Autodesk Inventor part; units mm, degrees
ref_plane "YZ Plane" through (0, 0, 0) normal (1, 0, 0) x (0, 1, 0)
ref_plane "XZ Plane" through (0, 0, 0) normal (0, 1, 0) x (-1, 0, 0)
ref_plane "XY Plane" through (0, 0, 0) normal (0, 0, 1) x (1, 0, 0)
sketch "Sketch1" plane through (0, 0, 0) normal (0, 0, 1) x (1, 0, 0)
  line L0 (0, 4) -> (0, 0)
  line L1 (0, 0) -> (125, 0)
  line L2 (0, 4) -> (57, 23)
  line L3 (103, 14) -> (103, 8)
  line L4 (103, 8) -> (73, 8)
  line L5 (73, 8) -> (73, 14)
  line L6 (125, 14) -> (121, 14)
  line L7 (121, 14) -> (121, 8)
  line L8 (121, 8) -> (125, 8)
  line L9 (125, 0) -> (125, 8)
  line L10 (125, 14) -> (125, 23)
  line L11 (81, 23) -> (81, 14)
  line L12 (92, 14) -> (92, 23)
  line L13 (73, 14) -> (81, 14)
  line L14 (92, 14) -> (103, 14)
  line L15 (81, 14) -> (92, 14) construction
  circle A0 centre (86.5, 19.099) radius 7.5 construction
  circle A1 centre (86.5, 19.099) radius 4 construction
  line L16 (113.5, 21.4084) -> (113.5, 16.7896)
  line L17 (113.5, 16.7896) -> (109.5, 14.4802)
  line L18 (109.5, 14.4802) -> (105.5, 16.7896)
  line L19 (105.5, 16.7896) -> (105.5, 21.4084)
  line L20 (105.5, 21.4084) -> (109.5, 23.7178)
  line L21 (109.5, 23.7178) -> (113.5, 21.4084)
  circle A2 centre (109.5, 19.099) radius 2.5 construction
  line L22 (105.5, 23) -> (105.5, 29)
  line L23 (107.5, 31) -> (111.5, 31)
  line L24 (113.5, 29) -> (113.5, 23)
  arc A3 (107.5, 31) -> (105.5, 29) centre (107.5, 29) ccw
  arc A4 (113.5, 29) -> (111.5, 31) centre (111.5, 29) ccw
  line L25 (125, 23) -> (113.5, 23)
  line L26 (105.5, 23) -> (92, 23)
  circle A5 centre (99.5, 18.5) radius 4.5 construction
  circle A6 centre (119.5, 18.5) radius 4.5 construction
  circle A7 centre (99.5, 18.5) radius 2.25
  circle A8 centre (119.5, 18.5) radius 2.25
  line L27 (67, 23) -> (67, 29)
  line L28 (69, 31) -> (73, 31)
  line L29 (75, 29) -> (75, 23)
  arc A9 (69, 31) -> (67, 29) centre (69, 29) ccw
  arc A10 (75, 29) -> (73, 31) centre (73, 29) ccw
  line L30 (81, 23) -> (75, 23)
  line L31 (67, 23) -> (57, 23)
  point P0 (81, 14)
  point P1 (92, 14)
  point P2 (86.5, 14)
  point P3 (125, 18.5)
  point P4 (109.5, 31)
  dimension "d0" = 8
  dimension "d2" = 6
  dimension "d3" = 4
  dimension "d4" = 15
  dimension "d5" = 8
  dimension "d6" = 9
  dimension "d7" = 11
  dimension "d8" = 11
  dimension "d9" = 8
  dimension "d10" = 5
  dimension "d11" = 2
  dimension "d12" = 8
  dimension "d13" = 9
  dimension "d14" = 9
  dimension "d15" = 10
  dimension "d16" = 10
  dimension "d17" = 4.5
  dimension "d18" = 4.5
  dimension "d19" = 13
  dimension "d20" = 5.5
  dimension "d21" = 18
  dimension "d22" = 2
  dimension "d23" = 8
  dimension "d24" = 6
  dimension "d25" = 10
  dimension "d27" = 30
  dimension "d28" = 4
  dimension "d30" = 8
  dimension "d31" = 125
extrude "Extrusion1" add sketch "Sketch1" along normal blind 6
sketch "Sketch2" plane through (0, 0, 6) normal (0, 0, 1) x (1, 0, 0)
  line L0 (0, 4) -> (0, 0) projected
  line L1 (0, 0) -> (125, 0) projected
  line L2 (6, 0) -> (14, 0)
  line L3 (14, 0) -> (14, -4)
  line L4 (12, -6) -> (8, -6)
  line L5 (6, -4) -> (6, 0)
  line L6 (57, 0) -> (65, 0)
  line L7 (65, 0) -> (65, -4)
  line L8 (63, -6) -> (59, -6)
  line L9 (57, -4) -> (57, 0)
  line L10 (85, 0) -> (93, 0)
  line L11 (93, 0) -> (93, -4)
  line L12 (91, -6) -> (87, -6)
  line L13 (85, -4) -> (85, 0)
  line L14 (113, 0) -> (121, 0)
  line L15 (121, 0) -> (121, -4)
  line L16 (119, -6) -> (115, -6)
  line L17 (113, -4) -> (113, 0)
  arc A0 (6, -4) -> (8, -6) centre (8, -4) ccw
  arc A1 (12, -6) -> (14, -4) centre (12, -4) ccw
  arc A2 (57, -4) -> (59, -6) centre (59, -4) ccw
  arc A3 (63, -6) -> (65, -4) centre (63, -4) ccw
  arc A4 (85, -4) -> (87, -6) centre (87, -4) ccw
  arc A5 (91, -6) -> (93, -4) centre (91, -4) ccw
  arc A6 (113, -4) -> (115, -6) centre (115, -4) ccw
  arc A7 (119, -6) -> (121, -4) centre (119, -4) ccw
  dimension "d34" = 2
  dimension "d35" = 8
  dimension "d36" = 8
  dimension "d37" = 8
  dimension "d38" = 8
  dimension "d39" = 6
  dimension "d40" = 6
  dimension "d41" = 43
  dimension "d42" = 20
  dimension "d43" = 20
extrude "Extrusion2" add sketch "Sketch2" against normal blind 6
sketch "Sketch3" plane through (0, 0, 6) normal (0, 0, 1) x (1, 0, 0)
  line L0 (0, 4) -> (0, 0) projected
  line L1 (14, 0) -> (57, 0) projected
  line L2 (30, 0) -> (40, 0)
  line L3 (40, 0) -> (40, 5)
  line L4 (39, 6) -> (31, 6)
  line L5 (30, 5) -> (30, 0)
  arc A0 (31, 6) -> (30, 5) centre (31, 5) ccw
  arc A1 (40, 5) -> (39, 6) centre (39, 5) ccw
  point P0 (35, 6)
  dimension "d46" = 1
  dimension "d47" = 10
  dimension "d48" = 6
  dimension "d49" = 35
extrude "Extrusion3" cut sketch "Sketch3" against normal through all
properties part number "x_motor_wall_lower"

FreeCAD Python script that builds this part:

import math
import FreeCAD as App
import Part
import Sketcher
from FreeCAD import Vector
Q = App.Units.Quantity

doc = App.newDocument("Part")
body = doc.addObject("PartDesign::Body", "Body")

sketch1 = body.newObject("Sketcher::SketchObject", "Sketch")
sketch1.AttachmentSupport = (doc.getObject("XY_Plane"), [""])
sketch1.MapMode = "FlatFace"
sketch1.addGeometry([
    Part.LineSegment(Vector(57, 23, 0), Vector(0, 4, 0)),
    Part.LineSegment(Vector(0, 4, 0), Vector(0, 0, 0)),
    Part.LineSegment(Vector(0, 0, 0), Vector(125, 0, 0)),
    Part.LineSegment(Vector(125, 0, 0), Vector(125, 8, 0)),
    Part.LineSegment(Vector(125, 8, 0), Vector(121, 8, 0)),
    Part.LineSegment(Vector(121, 8, 0), Vector(121, 14, 0)),
    Part.LineSegment(Vector(121, 14, 0), Vector(125, 14, 0)),
    Part.LineSegment(Vector(125, 14, 0), Vector(125, 23, 0)),
    Part.LineSegment(Vector(125, 23, 0), Vector(113.5, 23, 0)),
    Part.LineSegment(Vector(113.5, 23, 0), Vector(113.5, 29, 0)),
    Part.ArcOfCircle(Part.Circle(Vector(111.5, 29, 0), Vector(0, 0, 1), 2), math.radians(0), math.radians(90)),
    Part.LineSegment(Vector(111.5, 31, 0), Vector(107.5, 31, 0)),
    Part.ArcOfCircle(Part.Circle(Vector(107.5, 29, 0), Vector(0, 0, 1), 2), math.radians(90), math.radians(180)),
    Part.LineSegment(Vector(105.5, 29, 0), Vector(105.5, 23, 0)),
    Part.LineSegment(Vector(105.5, 23, 0), Vector(92, 23, 0)),
    Part.LineSegment(Vector(92, 23, 0), Vector(92, 14, 0)),
    Part.LineSegment(Vector(92, 14, 0), Vector(103, 14, 0)),
    Part.LineSegment(Vector(103, 14, 0), Vector(103, 8, 0)),
    Part.LineSegment(Vector(103, 8, 0), Vector(73, 8, 0)),
    Part.LineSegment(Vector(73, 8, 0), Vector(73, 14, 0)),
    Part.LineSegment(Vector(73, 14, 0), Vector(81, 14, 0)),
    Part.LineSegment(Vector(81, 14, 0), Vector(81, 23, 0)),
    Part.LineSegment(Vector(81, 23, 0), Vector(75, 23, 0)),
    Part.LineSegment(Vector(75, 23, 0), Vector(75, 29, 0)),
    Part.ArcOfCircle(Part.Circle(Vector(73, 29, 0), Vector(0, 0, 1), 2), math.radians(0), math.radians(90)),
    Part.LineSegment(Vector(73, 31, 0), Vector(69, 31, 0)),
    Part.ArcOfCircle(Part.Circle(Vector(69, 29, 0), Vector(0, 0, 1), 2), math.radians(90), math.radians(180)),
    Part.LineSegment(Vector(67, 29, 0), Vector(67, 23, 0)),
    Part.LineSegment(Vector(67, 23, 0), Vector(57, 23, 0)),
    Part.Circle(Vector(99.5, 18.5, 0), Vector(0, 0, 1), 2.2),
    Part.LineSegment(Vector(109.5, 23.7, 0), Vector(113.5, 21.4, 0)),
    Part.LineSegment(Vector(113.5, 21.4, 0), Vector(113.5, 16.8, 0)),
    Part.LineSegment(Vector(113.5, 16.8, 0), Vector(109.5, 14.5, 0)),
    Part.LineSegment(Vector(109.5, 14.5, 0), Vector(105.5, 16.8, 0)),
    Part.LineSegment(Vector(105.5, 16.8, 0), Vector(105.5, 21.4, 0)),
    Part.LineSegment(Vector(105.5, 21.4, 0), Vector(109.5, 23.7, 0)),
    Part.Circle(Vector(119.5, 18.5, 0), Vector(0, 0, 1), 2.2),
], False)
sketch1.addConstraint([
    Sketcher.Constraint("Coincident", 0, 2, 1, 1),
    Sketcher.Constraint("Coincident", 1, 2, 2, 1),
    Sketcher.Constraint("Coincident", 2, 2, 3, 1),
    Sketcher.Constraint("Coincident", 3, 2, 4, 1),
    Sketcher.Constraint("Coincident", 4, 2, 5, 1),
    Sketcher.Constraint("Coincident", 5, 2, 6, 1),
    Sketcher.Constraint("Coincident", 6, 2, 7, 1),
    Sketcher.Constraint("Coincident", 7, 2, 8, 1),
    Sketcher.Constraint("Coincident", 8, 2, 9, 1),
    Sketcher.Constraint("Tangent", 9, 2, 10, 1),
    Sketcher.Constraint("Tangent", 10, 2, 11, 1),
    Sketcher.Constraint("Tangent", 11, 2, 12, 1),
    Sketcher.Constraint("Tangent", 12, 2, 13, 1),
    Sketcher.Constraint("Coincident", 13, 2, 14, 1),
    Sketcher.Constraint("Coincident", 14, 2, 15, 1),
    Sketcher.Constraint("Coincident", 15, 2, 16, 1),
    Sketcher.Constraint("Coincident", 16, 2, 17, 1),
    Sketcher.Constraint("Coincident", 17, 2, 18, 1),
    Sketcher.Constraint("Coincident", 18, 2, 19, 1),
    Sketcher.Constraint("Coincident", 19, 2, 20, 1),
    Sketcher.Constraint("Coincident", 20, 2, 21, 1),
    Sketcher.Constraint("Coincident", 21, 2, 22, 1),
    Sketcher.Constraint("Coincident", 22, 2, 23, 1),
    Sketcher.Constraint("Tangent", 23, 2, 24, 1),
    Sketcher.Constraint("Tangent", 24, 2, 25, 1),
    Sketcher.Constraint("Tangent", 25, 2, 26, 1),
    Sketcher.Constraint("Tangent", 26, 2, 27, 1),
    Sketcher.Constraint("Coincident", 27, 2, 28, 1),
    Sketcher.Constraint("Coincident", 28, 2, 0, 1),
    Sketcher.Constraint("Coincident", 30, 2, 31, 1),
    Sketcher.Constraint("Coincident", 31, 2, 32, 1),
    Sketcher.Constraint("Coincident", 32, 2, 33, 1),
    Sketcher.Constraint("Coincident", 33, 2, 34, 1),
    Sketcher.Constraint("Coincident", 34, 2, 35, 1),
    Sketcher.Constraint("Coincident", 35, 2, 30, 1),
    Sketcher.Constraint("Vertical", 1),
    Sketcher.Constraint("Horizontal", 2),
    Sketcher.Constraint("Vertical", 3),
    Sketcher.Constraint("Horizontal", 4),
    Sketcher.Constraint("Vertical", 5),
    Sketcher.Constraint("Horizontal", 6),
    Sketcher.Constraint("Vertical", 7),
    Sketcher.Constraint("Horizontal", 8),
    Sketcher.Constraint("Vertical", 9),
    Sketcher.Constraint("Horizontal", 11),
    Sketcher.Constraint("Vertical", 13),
    Sketcher.Constraint("Horizontal", 14),
    Sketcher.Constraint("Vertical", 15),
    Sketcher.Constraint("Horizontal", 16),
    Sketcher.Constraint("Vertical", 17),
    Sketcher.Constraint("Horizontal", 18),
    Sketcher.Constraint("Vertical", 19),
    Sketcher.Constraint("Horizontal", 20),
    Sketcher.Constraint("Vertical", 21),
    Sketcher.Constraint("Horizontal", 22),
    Sketcher.Constraint("Vertical", 23),
    Sketcher.Constraint("Horizontal", 25),
    Sketcher.Constraint("Vertical", 27),
    Sketcher.Constraint("Horizontal", 28),
    Sketcher.Constraint("Vertical", 31),
    Sketcher.Constraint("Vertical", 34),
    Sketcher.Constraint("Coincident", 1, 2, -1, 1),
    Sketcher.Constraint("Equal", 10, 12),
    Sketcher.Constraint("Equal", 12, 24),
    Sketcher.Constraint("Equal", 24, 26),
    Sketcher.Constraint("Equal", 29, 36),
    Sketcher.Constraint("Parallel", 30, 33),
    Sketcher.Constraint("Parallel", 32, 35),
    Sketcher.Constraint("Horizontal", 12, 3, 24, 3),
    Sketcher.Constraint("Horizontal", 29, 3, 36, 3),
    Sketcher.Constraint("Horizontal", 8, 2, 13, 2),
    Sketcher.Constraint("Horizontal", 6, 2, 15, 2),
    Sketcher.Constraint("Horizontal", 4, 2, 17, 2),
    Sketcher.Constraint("Horizontal", 16, 2, 19, 2),
    Sketcher.Constraint("Horizontal", 14, 2, 21, 2),
    Sketcher.Constraint("Horizontal", 22, 2, 27, 2),
    Sketcher.Constraint("Horizontal", 31, 2, 33, 2),
    Sketcher.Constraint("Horizontal", 30, 2, 34, 2),
    Sketcher.Constraint("Vertical", 3, 2, 6, 2),
    Sketcher.Constraint("Vertical", 24, 3, 18, 2),
    Sketcher.Constraint("Vertical", 9, 2, 30, 2),
    Sketcher.Constraint("Vertical", 13, 2, 33, 2),
    Sketcher.Constraint("Vertical", 32, 2, 35, 2),
    Sketcher.Constraint("Equal", 6, 11),
    Sketcher.Constraint("Equal", 11, 25),
    Sketcher.Constraint("Equal", 25, 1),
    Sketcher.Constraint("Equal", 20, 3),
    Sketcher.Constraint("Equal", 22, 5),
    Sketcher.Constraint("Equal", 5, 9),
    Sketcher.Constraint("Radius", 10, 2.0),
    Sketcher.Constraint("Diameter", 29, 4.5),
    Sketcher.Constraint("DistanceX", 2, 1, 2, 2, 125.0),
    Sketcher.Constraint("DistanceX", 4, 2, 4, 1, 4.0),
    Sketcher.Constraint("DistanceX", 16, 1, 16, 2, 11.0),
    Sketcher.Constraint("DistanceX", 18, 2, 18, 1, 30.0),
    Sketcher.Constraint("DistanceX", 20, 1, 20, 2, 8.0),
    Sketcher.Constraint("DistanceX", 28, 2, 28, 1, 10.0),
    Sketcher.Constraint("DistanceY", 7, 1, 7, 2, 9.0),
    Sketcher.Constraint("Angle", 30, Q("-30 deg")),
    Sketcher.Constraint("DistanceX", 29, 3, 12, 3, 8.0),
    Sketcher.Constraint("DistanceX", 10, 3, 36, 3, 8.0),
    Sketcher.Constraint("DistanceX", 17, 2, 4, 2, 18.0),
    Sketcher.Constraint("DistanceX", 36, 3, 2, 2, 5.5),
    Sketcher.Constraint("DistanceY", 5, 2, 36, 3, 4.5),
    Sketcher.Constraint("DistanceY", 31, 2, 31, 1, 4.6188),
    Sketcher.Constraint("DistanceY", -1, 1, 30, 2, 21.4084),
])
pad1 = body.newObject("PartDesign::Pad", "Pad")
pad1.Profile = sketch1
pad1.Length = 6

sketch2 = body.newObject("Sketcher::SketchObject", "Sketch001")
sketch2.AttachmentSupport = (doc.getObject("XY_Plane"), [""])
sketch2.MapMode = "FlatFace"
sketch2.AttachmentOffset = App.Placement(Vector(0, 0, 6), App.Rotation())
sketch2.addGeometry([
    Part.LineSegment(Vector(121, 0, 0), Vector(113, 0, 0)),
    Part.LineSegment(Vector(113, 0, 0), Vector(113, -4, 0)),
    Part.ArcOfCircle(Part.Circle(Vector(115, -4, 0), Vector(0, 0, 1), 2), math.radians(180), math.radians(270)),
    Part.LineSegment(Vector(115, -6, 0), Vector(119, -6, 0)),
    Part.ArcOfCircle(Part.Circle(Vector(119, -4, 0), Vector(0, 0, 1), 2), math.radians(-90), math.radians(0)),
    Part.LineSegment(Vector(121, -4, 0), Vector(121, 0, 0)),
    Part.LineSegment(Vector(93, 0, 0), Vector(85, 0, 0)),
    Part.LineSegment(Vector(85, 0, 0), Vector(85, -4, 0)),
    Part.ArcOfCircle(Part.Circle(Vector(87, -4, 0), Vector(0, 0, 1), 2), math.radians(180), math.radians(270)),
    Part.LineSegment(Vector(87, -6, 0), Vector(91, -6, 0)),
    Part.ArcOfCircle(Part.Circle(Vector(91, -4, 0), Vector(0, 0, 1), 2), math.radians(-90), math.radians(0)),
    Part.LineSegment(Vector(93, -4, 0), Vector(93, 0, 0)),
    Part.LineSegment(Vector(65, 0, 0), Vector(57, 0, 0)),
    Part.LineSegment(Vector(57, 0, 0), Vector(57, -4, 0)),
    Part.ArcOfCircle(Part.Circle(Vector(59, -4, 0), Vector(0, 0, 1), 2), math.radians(180), math.radians(270)),
    Part.LineSegment(Vector(59, -6, 0), Vector(63, -6, 0)),
    Part.ArcOfCircle(Part.Circle(Vector(63, -4, 0), Vector(0, 0, 1), 2), math.radians(-90), math.radians(0)),
    Part.LineSegment(Vector(65, -4, 0), Vector(65, 0, 0)),
    Part.LineSegment(Vector(14, 0, 0), Vector(6, 0, 0)),
    Part.LineSegment(Vector(6, 0, 0), Vector(6, -4, 0)),
    Part.ArcOfCircle(Part.Circle(Vector(8, -4, 0), Vector(0, 0, 1), 2), math.radians(180), math.radians(270)),
    Part.LineSegment(Vector(8, -6, 0), Vector(12, -6, 0)),
    Part.ArcOfCircle(Part.Circle(Vector(12, -4, 0), Vector(0, 0, 1), 2), math.radians(-90), math.radians(0)),
    Part.LineSegment(Vector(14, -4, 0), Vector(14, 0, 0)),
], False)
sketch2.addConstraint([
    Sketcher.Constraint("Coincident", 0, 2, 1, 1),
    Sketcher.Constraint("Tangent", 1, 2, 2, 1),
    Sketcher.Constraint("Tangent", 2, 2, 3, 1),
    Sketcher.Constraint("Tangent", 3, 2, 4, 1),
    Sketcher.Constraint("Tangent", 4, 2, 5, 1),
    Sketcher.Constraint("Coincident", 5, 2, 0, 1),
    Sketcher.Constraint("Coincident", 6, 2, 7, 1),
    Sketcher.Constraint("Tangent", 7, 2, 8, 1),
    Sketcher.Constraint("Tangent", 8, 2, 9, 1),
    Sketcher.Constraint("Tangent", 9, 2, 10, 1),
    Sketcher.Constraint("Tangent", 10, 2, 11, 1),
    Sketcher.Constraint("Coincident", 11, 2, 6, 1),
    Sketcher.Constraint("Coincident", 12, 2, 13, 1),
    Sketcher.Constraint("Tangent", 13, 2, 14, 1),
    Sketcher.Constraint("Tangent", 14, 2, 15, 1),
    Sketcher.Constraint("Tangent", 15, 2, 16, 1),
    Sketcher.Constraint("Tangent", 16, 2, 17, 1),
    Sketcher.Constraint("Coincident", 17, 2, 12, 1),
    Sketcher.Constraint("Coincident", 18, 2, 19, 1),
    Sketcher.Constraint("Tangent", 19, 2, 20, 1),
    Sketcher.Constraint("Tangent", 20, 2, 21, 1),
    Sketcher.Constraint("Tangent", 21, 2, 22, 1),
    Sketcher.Constraint("Tangent", 22, 2, 23, 1),
    Sketcher.Constraint("Coincident", 23, 2, 18, 1),
    Sketcher.Constraint("Horizontal", 0),
    Sketcher.Constraint("Vertical", 1),
    Sketcher.Constraint("Horizontal", 3),
    Sketcher.Constraint("Vertical", 5),
    Sketcher.Constraint("Horizontal", 6),
    Sketcher.Constraint("Vertical", 7),
    Sketcher.Constraint("Horizontal", 9),
    Sketcher.Constraint("Vertical", 11),
    Sketcher.Constraint("Horizontal", 12),
    Sketcher.Constraint("Vertical", 13),
    Sketcher.Constraint("Horizontal", 15),
    Sketcher.Constraint("Vertical", 17),
    Sketcher.Constraint("Horizontal", 18),
    Sketcher.Constraint("Vertical", 19),
    Sketcher.Constraint("Horizontal", 21),
    Sketcher.Constraint("Vertical", 23),
    Sketcher.Constraint("Equal", 2, 4),
    Sketcher.Constraint("Equal", 4, 8),
    Sketcher.Constraint("Equal", 8, 10),
    Sketcher.Constraint("Equal", 10, 14),
    Sketcher.Constraint("Equal", 14, 16),
    Sketcher.Constraint("Equal", 16, 20),
    Sketcher.Constraint("Equal", 20, 22),
    Sketcher.Constraint("PointOnObject", 0, 2, -1),
    Sketcher.Constraint("PointOnObject", 6, 2, -1),
    Sketcher.Constraint("PointOnObject", 12, 2, -1),
    Sketcher.Constraint("PointOnObject", 18, 2, -1),
    Sketcher.Constraint("Horizontal", 4, 3, 8, 3),
    Sketcher.Constraint("Horizontal", 10, 3, 14, 3),
    Sketcher.Constraint("Horizontal", 16, 3, 20, 3),
    Sketcher.Constraint("Equal", 0, 6),
    Sketcher.Constraint("Equal", 6, 12),
    Sketcher.Constraint("Equal", 12, 18),
    Sketcher.Constraint("Equal", 21, 1),
    Sketcher.Constraint("Radius", 2, 2.0),
    Sketcher.Constraint("DistanceX", 0, 2, 0, 1, 8.0),
    Sketcher.Constraint("DistanceX", -1, 1, 20, 3, 8.0),
    Sketcher.Constraint("DistanceX", -1, 1, 2, 3, 115.0),
    Sketcher.Constraint("DistanceX", -1, 1, 8, 3, 87.0),
    Sketcher.Constraint("DistanceX", -1, 1, 14, 3, 59.0),
])
pad2 = body.newObject("PartDesign::Pad", "Pad001")
pad2.Profile = sketch2
pad2.Length = 6
pad2.Reversed = True

sketch3 = body.newObject("Sketcher::SketchObject", "Sketch002")
sketch3.AttachmentSupport = (doc.getObject("XY_Plane"), [""])
sketch3.MapMode = "FlatFace"
sketch3.AttachmentOffset = App.Placement(Vector(0, 0, 6), App.Rotation())
sketch3.addGeometry([
    Part.LineSegment(Vector(30, 5, 0), Vector(30, 0, 0)),
    Part.LineSegment(Vector(30, 0, 0), Vector(40, 0, 0)),
    Part.LineSegment(Vector(40, 0, 0), Vector(40, 5, 0)),
    Part.ArcOfCircle(Part.Circle(Vector(39, 5, 0), Vector(0, 0, 1), 1), math.radians(0), math.radians(90)),
    Part.LineSegment(Vector(39, 6, 0), Vector(31, 6, 0)),
    Part.ArcOfCircle(Part.Circle(Vector(31, 5, 0), Vector(0, 0, 1), 1), math.radians(90), math.radians(180)),
], False)
sketch3.addConstraint([
    Sketcher.Constraint("Coincident", 0, 2, 1, 1),
    Sketcher.Constraint("Coincident", 1, 2, 2, 1),
    Sketcher.Constraint("Tangent", 2, 2, 3, 1),
    Sketcher.Constraint("Tangent", 3, 2, 4, 1),
    Sketcher.Constraint("Tangent", 4, 2, 5, 1),
    Sketcher.Constraint("Tangent", 5, 2, 0, 1),
    Sketcher.Constraint("Vertical", 0),
    Sketcher.Constraint("Horizontal", 1),
    Sketcher.Constraint("Vertical", 2),
    Sketcher.Constraint("Horizontal", 4),
    Sketcher.Constraint("Equal", 3, 5),
    Sketcher.Constraint("PointOnObject", 0, 2, -1),
    Sketcher.Constraint("Radius", 3, 1.0),
    Sketcher.Constraint("DistanceX", 1, 1, 1, 2, 10.0),
    Sketcher.Constraint("DistanceY", -1, 1, 3, 2, 6.0),
    Sketcher.Constraint("DistanceX", -1, 1, 3, 3, 39.0),
])
pocket1 = body.newObject("PartDesign::Pocket", "Pocket")
pocket1.Profile = sketch3
pocket1.Type = "ThroughAll"

doc.recompute()
